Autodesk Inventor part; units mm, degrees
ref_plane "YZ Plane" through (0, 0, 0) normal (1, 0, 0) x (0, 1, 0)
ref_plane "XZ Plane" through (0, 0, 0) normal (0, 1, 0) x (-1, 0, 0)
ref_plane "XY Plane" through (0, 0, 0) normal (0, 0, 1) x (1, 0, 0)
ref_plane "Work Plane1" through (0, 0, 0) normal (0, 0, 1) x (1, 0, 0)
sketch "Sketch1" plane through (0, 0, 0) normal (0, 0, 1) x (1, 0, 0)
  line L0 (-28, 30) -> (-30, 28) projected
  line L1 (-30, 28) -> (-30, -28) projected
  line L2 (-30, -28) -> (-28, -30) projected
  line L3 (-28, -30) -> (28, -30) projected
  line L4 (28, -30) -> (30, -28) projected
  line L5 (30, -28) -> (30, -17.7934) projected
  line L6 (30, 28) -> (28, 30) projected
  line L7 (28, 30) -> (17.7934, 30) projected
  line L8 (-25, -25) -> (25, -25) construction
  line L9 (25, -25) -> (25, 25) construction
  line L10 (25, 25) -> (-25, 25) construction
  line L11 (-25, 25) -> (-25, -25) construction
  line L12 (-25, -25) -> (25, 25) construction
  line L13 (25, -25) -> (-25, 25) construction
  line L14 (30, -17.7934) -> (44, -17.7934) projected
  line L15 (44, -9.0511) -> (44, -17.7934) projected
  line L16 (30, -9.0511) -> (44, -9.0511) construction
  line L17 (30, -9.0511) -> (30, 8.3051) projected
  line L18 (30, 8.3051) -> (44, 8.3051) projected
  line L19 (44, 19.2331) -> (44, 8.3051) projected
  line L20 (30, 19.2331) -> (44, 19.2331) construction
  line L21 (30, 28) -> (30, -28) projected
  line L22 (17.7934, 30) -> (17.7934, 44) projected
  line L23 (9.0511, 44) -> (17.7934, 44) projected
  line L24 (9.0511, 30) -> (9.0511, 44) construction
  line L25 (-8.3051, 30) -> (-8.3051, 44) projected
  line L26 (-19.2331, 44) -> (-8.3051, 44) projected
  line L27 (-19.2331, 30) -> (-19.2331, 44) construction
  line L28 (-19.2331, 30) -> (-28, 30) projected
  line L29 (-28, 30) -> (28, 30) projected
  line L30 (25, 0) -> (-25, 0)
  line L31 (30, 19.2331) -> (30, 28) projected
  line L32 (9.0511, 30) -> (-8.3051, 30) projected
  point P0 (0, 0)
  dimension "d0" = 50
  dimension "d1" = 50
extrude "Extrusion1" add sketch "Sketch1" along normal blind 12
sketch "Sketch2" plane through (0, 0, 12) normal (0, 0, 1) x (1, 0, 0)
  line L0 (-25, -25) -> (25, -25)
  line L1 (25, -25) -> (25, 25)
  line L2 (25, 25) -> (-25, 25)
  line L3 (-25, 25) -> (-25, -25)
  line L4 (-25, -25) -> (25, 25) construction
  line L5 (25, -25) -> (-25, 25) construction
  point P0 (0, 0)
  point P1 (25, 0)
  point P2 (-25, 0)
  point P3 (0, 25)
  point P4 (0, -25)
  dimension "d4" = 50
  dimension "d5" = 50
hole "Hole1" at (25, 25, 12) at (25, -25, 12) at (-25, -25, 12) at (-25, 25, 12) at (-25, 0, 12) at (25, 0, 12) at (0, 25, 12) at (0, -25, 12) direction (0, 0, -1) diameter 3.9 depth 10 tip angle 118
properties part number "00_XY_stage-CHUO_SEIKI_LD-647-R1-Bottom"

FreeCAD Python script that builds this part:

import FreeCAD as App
import Part
import Sketcher

V = App.Vector
Q = App.Units.Quantity

doc = App.newDocument("Part")
params = doc.addObject("Spreadsheet::Sheet", "Params")
for row, (alias, value) in enumerate([
    ("sketch1_width", "56 mm"),
    ("pad1_length", "12 mm"),
    ("sketch2_diameter", "3.9 mm"),
    ("hole_diameter", "3.9 mm"),
    ("hole_depth", "10 mm"),
], start=1):
    params.set(f"A{row}", alias)
    params.set(f"B{row}", "=" + value)
    params.setAlias(f"B{row}", alias)

body = doc.addObject("PartDesign::Body", "Body")

sketch1 = doc.addObject("Sketcher::SketchObject", "Sketch")
body.addObject(sketch1)
sketch1.AttachmentSupport = (doc.XY_Plane, [""])
sketch1.MapMode = "FlatFace"
sketch1.addGeometry([
    Part.LineSegment(V(28, 30, 0), V(-28, 30, 0)),
    Part.LineSegment(V(-28, 30, 0), V(-30, 28, 0)),
    Part.LineSegment(V(-30, 28, 0), V(-30, -28, 0)),
    Part.LineSegment(V(-30, -28, 0), V(-28, -30, 0)),
    Part.LineSegment(V(-28, -30, 0), V(28, -30, 0)),
    Part.LineSegment(V(28, -30, 0), V(30, -28, 0)),
    Part.LineSegment(V(30, -28, 0), V(30, 28, 0)),
    Part.LineSegment(V(30, 28, 0), V(28, 30, 0)),
], False)
sketch1.addConstraint([
    Sketcher.Constraint("Coincident", 0, 2, 1, 1),
    Sketcher.Constraint("Coincident", 1, 2, 2, 1),
    Sketcher.Constraint("Coincident", 2, 2, 3, 1),
    Sketcher.Constraint("Coincident", 3, 2, 4, 1),
    Sketcher.Constraint("Coincident", 4, 2, 5, 1),
    Sketcher.Constraint("Coincident", 5, 2, 6, 1),
    Sketcher.Constraint("Coincident", 6, 2, 7, 1),
    Sketcher.Constraint("Coincident", 7, 2, 0, 1),
    Sketcher.Constraint("Horizontal", 0),
    Sketcher.Constraint("Vertical", 2),
    Sketcher.Constraint("Horizontal", 4),
    Sketcher.Constraint("Vertical", 6),
    Sketcher.Constraint("Symmetric", 0, 2, 4, 2, -1, 1),
    Sketcher.Constraint("Symmetric", 1, 2, 5, 2, -1, 1),
    Sketcher.Constraint("Perpendicular", 1, 3),
    Sketcher.Constraint("Perpendicular", 5, 7),
    Sketcher.Constraint("Horizontal", 2, 2, 5, 2),
    Sketcher.Constraint("Horizontal", 1, 2, 6, 2),
    Sketcher.Constraint("Vertical", 0, 2, 3, 2),
    Sketcher.Constraint("Equal", 4, 2),
    Sketcher.Constraint("DistanceX", 0, 2, 0, 1, Q("56 mm")),
    Sketcher.Constraint("DistanceY", -1, 1, 0, 2, Q("30 mm")),
])
sketch1.setExpression("Constraints[20]", "Params.sketch1_width")
pad1 = doc.addObject("PartDesign::Pad", "Pad")
body.addObject(pad1)
pad1.Profile = sketch1
pad1.setExpression("Length", "Params.pad1_length")

sketch2 = doc.addObject("Sketcher::SketchObject", "Sketch001")
body.addObject(sketch2)
sketch2.AttachmentSupport = (doc.XY_Plane, [""])
sketch2.MapMode = "FlatFace"
sketch2.AttachmentOffset = App.Placement(V(0, 0, 12), App.Rotation())
sketch2.addGeometry([
    Part.Circle(V(25, 25, 0), V(0, 0, 1), 1.95),
    Part.Circle(V(25, -25, 0), V(0, 0, 1), 1.95),
    Part.Circle(V(-25, -25, 0), V(0, 0, 1), 1.95),
    Part.Circle(V(-25, 25, 0), V(0, 0, 1), 1.95),
    Part.Circle(V(-25, 0, 0), V(0, 0, 1), 1.95),
    Part.Circle(V(25, 0, 0), V(0, 0, 1), 1.95),
    Part.Circle(V(0, 25, 0), V(0, 0, 1), 1.95),
    Part.Circle(V(0, -25, 0), V(0, 0, 1), 1.95),
], False)
sketch2.addConstraint([
    Sketcher.Constraint("Equal", 0, 1),
    Sketcher.Constraint("Equal", 1, 2),
    Sketcher.Constraint("Equal", 2, 3),
    Sketcher.Constraint("Equal", 3, 4),
    Sketcher.Constraint("Equal", 4, 5),
    Sketcher.Constraint("Equal", 5, 6),
    Sketcher.Constraint("Equal", 6, 7),
    Sketcher.Constraint("Symmetric", 0, 3, 2, 3, -1, 1),
    Sketcher.Constraint("Symmetric", 1, 3, 3, 3, -1, 1),
    Sketcher.Constraint("Symmetric", 4, 3, 5, 3, -1, 1),
    Sketcher.Constraint("Symmetric", 6, 3, 7, 3, -1, 1),
    Sketcher.Constraint("Symmetric", 1, 3, 2, 3, -2),
    Sketcher.Constraint("PointOnObject", 4, 3, -1),
    Sketcher.Constraint("PointOnObject", 6, 3, -2),
    Sketcher.Constraint("Horizontal", 3, 3, 6, 3),
    Sketcher.Constraint("Vertical", 3, 3, 4, 3),
    Sketcher.Constraint("Diameter", 0, Q("3.9 mm")),
    Sketcher.Constraint("DistanceX", -1, 1, 0, 3, Q("25 mm")),
    Sketcher.Constraint("DistanceY", -1, 1, 0, 3, Q("25 mm")),
])
sketch2.setExpression("Constraints[16]", "Params.sketch2_diameter")
doc.recompute()
hole = doc.addObject("PartDesign::Hole", "Hole")
body.addObject(hole)
hole.Profile = sketch2
hole.ThreadType = "None"
hole.setExpression("Diameter", "Params.hole_diameter")
hole.DepthType = "Dimension"
hole.setExpression("Depth", "Params.hole_depth")
hole.DrillPoint = "Angled"
hole.DrillPointAngle = 118

doc.recompute()
